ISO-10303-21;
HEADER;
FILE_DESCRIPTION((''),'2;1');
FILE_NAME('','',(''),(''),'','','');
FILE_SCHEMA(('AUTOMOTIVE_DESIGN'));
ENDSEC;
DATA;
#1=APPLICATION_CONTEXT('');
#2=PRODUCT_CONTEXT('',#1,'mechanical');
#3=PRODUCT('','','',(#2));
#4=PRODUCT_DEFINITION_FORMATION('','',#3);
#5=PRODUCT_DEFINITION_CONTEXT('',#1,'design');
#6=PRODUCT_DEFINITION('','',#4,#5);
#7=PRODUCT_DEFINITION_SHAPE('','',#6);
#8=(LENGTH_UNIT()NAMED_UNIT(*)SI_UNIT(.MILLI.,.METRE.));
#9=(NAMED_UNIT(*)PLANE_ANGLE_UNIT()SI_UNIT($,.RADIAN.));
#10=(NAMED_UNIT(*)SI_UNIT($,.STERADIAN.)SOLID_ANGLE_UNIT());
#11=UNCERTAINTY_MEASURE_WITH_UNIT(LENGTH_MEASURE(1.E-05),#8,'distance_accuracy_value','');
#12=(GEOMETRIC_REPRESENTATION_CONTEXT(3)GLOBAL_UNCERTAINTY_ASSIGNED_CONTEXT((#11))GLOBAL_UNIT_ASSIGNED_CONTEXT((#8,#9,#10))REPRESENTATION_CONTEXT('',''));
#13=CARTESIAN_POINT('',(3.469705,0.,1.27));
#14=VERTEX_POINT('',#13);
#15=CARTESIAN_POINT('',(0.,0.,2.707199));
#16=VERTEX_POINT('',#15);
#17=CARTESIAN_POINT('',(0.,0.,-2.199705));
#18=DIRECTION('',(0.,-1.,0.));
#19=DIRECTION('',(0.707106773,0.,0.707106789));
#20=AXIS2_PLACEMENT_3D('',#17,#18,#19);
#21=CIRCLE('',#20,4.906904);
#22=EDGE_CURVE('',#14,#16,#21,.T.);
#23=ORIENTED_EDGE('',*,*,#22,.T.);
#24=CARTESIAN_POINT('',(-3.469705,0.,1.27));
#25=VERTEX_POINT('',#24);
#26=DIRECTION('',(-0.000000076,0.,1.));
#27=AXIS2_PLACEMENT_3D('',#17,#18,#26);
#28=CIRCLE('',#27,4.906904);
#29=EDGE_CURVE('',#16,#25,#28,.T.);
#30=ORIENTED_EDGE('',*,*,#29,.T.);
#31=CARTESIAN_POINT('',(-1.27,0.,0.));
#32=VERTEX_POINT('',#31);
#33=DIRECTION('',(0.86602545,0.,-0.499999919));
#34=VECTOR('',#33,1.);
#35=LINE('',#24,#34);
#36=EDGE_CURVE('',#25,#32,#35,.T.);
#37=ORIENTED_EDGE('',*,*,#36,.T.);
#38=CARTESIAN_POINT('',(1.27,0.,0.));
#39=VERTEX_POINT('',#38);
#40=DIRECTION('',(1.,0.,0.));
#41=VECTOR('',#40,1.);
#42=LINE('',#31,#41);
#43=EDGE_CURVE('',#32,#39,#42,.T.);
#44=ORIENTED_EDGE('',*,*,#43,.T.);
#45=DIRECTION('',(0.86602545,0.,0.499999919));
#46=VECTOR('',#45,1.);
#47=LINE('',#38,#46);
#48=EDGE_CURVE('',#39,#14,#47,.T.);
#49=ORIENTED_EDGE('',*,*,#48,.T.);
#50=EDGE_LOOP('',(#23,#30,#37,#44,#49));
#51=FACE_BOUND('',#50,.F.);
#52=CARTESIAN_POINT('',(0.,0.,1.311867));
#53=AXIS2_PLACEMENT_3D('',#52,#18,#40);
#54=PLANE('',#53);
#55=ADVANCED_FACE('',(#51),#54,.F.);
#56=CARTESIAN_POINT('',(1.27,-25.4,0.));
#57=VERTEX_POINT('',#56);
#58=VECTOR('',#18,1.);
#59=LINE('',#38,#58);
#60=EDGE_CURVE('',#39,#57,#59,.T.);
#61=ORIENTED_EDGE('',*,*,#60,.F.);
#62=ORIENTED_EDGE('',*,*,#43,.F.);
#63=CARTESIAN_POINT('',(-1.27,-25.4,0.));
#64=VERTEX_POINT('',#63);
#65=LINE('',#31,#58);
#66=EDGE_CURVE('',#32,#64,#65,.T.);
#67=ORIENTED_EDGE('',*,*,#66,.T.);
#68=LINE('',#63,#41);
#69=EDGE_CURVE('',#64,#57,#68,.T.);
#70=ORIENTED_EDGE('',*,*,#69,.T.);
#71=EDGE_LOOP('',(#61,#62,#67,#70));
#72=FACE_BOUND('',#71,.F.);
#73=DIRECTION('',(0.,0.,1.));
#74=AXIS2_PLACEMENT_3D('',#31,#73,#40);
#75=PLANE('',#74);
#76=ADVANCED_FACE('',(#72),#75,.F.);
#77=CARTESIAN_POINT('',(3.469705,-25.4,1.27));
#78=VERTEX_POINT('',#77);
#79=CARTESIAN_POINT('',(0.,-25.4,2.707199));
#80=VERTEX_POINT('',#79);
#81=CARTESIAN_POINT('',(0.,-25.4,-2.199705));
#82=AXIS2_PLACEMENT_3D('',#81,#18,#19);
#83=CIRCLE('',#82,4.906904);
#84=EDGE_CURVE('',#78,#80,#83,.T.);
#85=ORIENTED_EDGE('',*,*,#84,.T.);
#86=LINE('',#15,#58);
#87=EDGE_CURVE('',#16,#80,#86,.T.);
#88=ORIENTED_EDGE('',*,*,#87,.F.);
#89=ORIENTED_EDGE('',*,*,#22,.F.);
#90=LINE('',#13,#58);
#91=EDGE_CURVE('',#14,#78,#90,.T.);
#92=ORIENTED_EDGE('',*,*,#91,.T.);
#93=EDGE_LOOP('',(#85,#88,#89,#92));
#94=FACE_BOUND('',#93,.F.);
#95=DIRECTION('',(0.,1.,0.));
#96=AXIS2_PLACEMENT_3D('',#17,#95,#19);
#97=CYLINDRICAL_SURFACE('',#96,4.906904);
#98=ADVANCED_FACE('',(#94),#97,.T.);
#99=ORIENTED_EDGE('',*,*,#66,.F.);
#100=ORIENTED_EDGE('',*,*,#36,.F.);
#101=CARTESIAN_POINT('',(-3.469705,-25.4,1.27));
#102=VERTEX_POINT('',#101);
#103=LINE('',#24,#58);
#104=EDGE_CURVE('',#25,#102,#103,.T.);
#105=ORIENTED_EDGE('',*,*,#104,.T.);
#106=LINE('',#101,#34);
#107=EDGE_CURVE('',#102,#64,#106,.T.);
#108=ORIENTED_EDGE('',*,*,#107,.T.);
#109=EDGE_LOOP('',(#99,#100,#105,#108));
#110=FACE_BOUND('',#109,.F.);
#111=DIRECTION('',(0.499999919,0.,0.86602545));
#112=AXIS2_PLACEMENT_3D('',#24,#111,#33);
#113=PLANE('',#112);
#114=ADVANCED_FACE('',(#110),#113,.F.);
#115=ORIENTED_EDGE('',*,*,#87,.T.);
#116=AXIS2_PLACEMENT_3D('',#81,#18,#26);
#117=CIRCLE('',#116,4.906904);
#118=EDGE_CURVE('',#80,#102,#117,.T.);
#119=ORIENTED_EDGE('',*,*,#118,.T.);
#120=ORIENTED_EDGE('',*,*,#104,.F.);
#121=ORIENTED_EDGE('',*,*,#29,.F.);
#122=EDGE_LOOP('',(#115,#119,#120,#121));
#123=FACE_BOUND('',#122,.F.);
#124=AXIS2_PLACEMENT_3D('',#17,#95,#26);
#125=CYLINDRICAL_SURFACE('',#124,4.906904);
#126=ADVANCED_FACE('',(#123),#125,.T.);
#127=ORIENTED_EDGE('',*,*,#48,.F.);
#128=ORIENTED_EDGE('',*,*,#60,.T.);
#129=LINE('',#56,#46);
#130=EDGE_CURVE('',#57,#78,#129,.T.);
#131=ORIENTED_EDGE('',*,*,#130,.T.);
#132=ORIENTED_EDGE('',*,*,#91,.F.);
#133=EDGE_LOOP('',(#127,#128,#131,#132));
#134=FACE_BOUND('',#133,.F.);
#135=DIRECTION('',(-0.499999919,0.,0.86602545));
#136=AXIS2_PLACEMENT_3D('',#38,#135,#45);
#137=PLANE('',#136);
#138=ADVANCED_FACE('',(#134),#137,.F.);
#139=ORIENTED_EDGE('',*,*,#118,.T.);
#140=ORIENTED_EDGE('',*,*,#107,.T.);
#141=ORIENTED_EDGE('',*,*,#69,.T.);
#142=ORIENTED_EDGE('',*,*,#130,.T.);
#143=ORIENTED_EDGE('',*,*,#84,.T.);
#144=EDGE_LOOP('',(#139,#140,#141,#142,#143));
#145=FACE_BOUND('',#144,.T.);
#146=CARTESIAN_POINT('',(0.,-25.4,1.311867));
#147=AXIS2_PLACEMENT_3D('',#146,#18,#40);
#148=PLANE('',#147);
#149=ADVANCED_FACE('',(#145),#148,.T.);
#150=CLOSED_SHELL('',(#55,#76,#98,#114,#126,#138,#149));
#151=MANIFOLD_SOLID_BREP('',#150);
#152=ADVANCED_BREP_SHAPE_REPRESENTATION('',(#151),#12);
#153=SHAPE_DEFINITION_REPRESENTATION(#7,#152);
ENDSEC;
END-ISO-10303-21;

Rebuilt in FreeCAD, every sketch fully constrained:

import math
import FreeCAD as App
import Part
import Sketcher
Q = App.Units.Quantity

doc = App.newDocument("Part")
body = doc.addObject("PartDesign::Body", "Body")

sketch1 = body.newObject("Sketcher::SketchObject", "Sketch")
sketch1.AttachmentSupport = (doc.getObject("XZ_Plane"), [""])
sketch1.MapMode = "FlatFace"
sketch1.addGeometry(Part.LineSegment(App.Vector(-1.3, 0, 0), App.Vector(1.3, 0, 0)), False)
sketch1.addGeometry(Part.LineSegment(App.Vector(1.3, 0, 0), App.Vector(3.5, 1.3, 0)), False)
sketch1.addGeometry(Part.ArcOfCircle(Part.Circle(App.Vector(0, -2.2, 0), App.Vector(0, 0, 1), 4.9), math.radians(45), math.radians(90)), False)
sketch1.addGeometry(Part.ArcOfCircle(Part.Circle(App.Vector(0, -2.2, 0), App.Vector(0, 0, 1), 4.9), math.radians(90), math.radians(135)), False)
sketch1.addGeometry(Part.LineSegment(App.Vector(-3.5, 1.3, 0), App.Vector(-1.3, 0, 0)), False)
sketch1.addConstraint(Sketcher.Constraint("Coincident", 0, 2, 1, 1))
sketch1.addConstraint(Sketcher.Constraint("Coincident", 1, 2, 2, 1))
sketch1.addConstraint(Sketcher.Constraint("Tangent", 2, 2, 3, 1))
sketch1.addConstraint(Sketcher.Constraint("Coincident", 3, 2, 4, 1))
sketch1.addConstraint(Sketcher.Constraint("Coincident", 4, 2, 0, 1))
sketch1.addConstraint(Sketcher.Constraint("Horizontal", 0))
sketch1.addConstraint(Sketcher.Constraint("Equal", 2, 3))
sketch1.addConstraint(Sketcher.Constraint("Symmetric", 0, 2, 4, 2, -1, 1))
sketch1.addConstraint(Sketcher.Constraint("Symmetric", 1, 2, 3, 2, -2))
sketch1.addConstraint(Sketcher.Constraint("PointOnObject", 2, 2, -2))
sketch1.addConstraint(Sketcher.Constraint("DistanceX", 0, 1, 0, 2, Q("0.1 in")))
sketch1.addConstraint(Sketcher.Constraint("Angle", 1, Q("29.999995 deg")))
sketch1.addConstraint(Sketcher.Constraint("Distance", 1, Q("0.1 in")))
sketch1.addConstraint(Sketcher.Constraint("Radius", 2, 4.906904))
pad1 = body.newObject("PartDesign::Pad", "Pad")
pad1.Profile = sketch1
pad1.Length = Q("1 in")

doc.recompute()
